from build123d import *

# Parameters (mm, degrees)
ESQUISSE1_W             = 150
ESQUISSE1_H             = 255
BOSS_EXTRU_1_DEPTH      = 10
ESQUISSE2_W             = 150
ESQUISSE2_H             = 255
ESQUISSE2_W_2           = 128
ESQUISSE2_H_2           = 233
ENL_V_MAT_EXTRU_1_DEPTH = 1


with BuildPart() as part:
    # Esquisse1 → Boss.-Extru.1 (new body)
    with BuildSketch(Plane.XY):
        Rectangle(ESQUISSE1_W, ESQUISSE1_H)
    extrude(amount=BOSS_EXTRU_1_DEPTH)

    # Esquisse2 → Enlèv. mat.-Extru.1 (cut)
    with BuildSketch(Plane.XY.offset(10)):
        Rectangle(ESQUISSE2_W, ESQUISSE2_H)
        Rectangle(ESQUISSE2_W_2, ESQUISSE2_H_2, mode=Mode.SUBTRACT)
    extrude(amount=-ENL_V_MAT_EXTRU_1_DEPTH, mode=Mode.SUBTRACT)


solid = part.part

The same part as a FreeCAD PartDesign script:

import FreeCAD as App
import Part
import Sketcher

V = App.Vector

doc = App.newDocument("Part")
body = doc.addObject("PartDesign::Body", "Body")

sketch1 = body.newObject("Sketcher::SketchObject", "Sketch")
sketch1.AttachmentSupport = (doc.getObject("XY_Plane"), [""])
sketch1.MapMode = "FlatFace"
sketch1.addGeometry(Part.LineSegment(V(-75, 128, 0), V(-75, -128, 0)), False)
sketch1.addGeometry(Part.LineSegment(V(-75, -128, 0), V(75, -128, 0)), False)
sketch1.addGeometry(Part.LineSegment(V(75, -128, 0), V(75, 128, 0)), False)
sketch1.addGeometry(Part.LineSegment(V(75, 128, 0), V(-75, 128, 0)), False)
sketch1.addConstraint(Sketcher.Constraint("Coincident", 0, 2, 1, 1))
sketch1.addConstraint(Sketcher.Constraint("Coincident", 1, 2, 2, 1))
sketch1.addConstraint(Sketcher.Constraint("Coincident", 2, 2, 3, 1))
sketch1.addConstraint(Sketcher.Constraint("Coincident", 3, 2, 0, 1))
sketch1.addConstraint(Sketcher.Constraint("Vertical", 0))
sketch1.addConstraint(Sketcher.Constraint("Horizontal", 1))
sketch1.addConstraint(Sketcher.Constraint("Vertical", 2))
sketch1.addConstraint(Sketcher.Constraint("Horizontal", 3))
sketch1.addConstraint(Sketcher.Constraint("Symmetric", 0, 2, 2, 2, -1, 1))
sketch1.addConstraint(Sketcher.Constraint("DistanceX", 1, 1, 1, 2, 150.0))
sketch1.addConstraint(Sketcher.Constraint("DistanceY", 0, 2, 0, 1, 255.0))
pad1 = body.newObject("PartDesign::Pad", "Pad")
pad1.Profile = sketch1
pad1.Length = 10

sketch2 = body.newObject("Sketcher::SketchObject", "Sketch001")
sketch2.AttachmentSupport = (doc.getObject("XY_Plane"), [""])
sketch2.MapMode = "FlatFace"
sketch2.AttachmentOffset = App.Placement(V(0, 0, 10), App.Rotation())
sketch2.addGeometry(Part.LineSegment(V(-75, 128, 0), V(-75, -128, 0)), False)
sketch2.addGeometry(Part.LineSegment(V(-75, -128, 0), V(75, -128, 0)), False)
sketch2.addGeometry(Part.LineSegment(V(75, -128, 0), V(75, 128, 0)), False)
sketch2.addGeometry(Part.LineSegment(V(75, 128, 0), V(-75, 128, 0)), False)
sketch2.addGeometry(Part.LineSegment(V(64, -116, 0), V(-64, -116, 0)), False)
sketch2.addGeometry(Part.LineSegment(V(-64, -116, 0), V(-64, 116, 0)), False)
sketch2.addGeometry(Part.LineSegment(V(-64, 116, 0), V(64, 116, 0)), False)
sketch2.addGeometry(Part.LineSegment(V(64, 116, 0), V(64, -116, 0)), False)
sketch2.addConstraint(Sketcher.Constraint("Coincident", 0, 2, 1, 1))
sketch2.addConstraint(Sketcher.Constraint("Coincident", 1, 2, 2, 1))
sketch2.addConstraint(Sketcher.Constraint("Coincident", 2, 2, 3, 1))
sketch2.addConstraint(Sketcher.Constraint("Coincident", 3, 2, 0, 1))
sketch2.addConstraint(Sketcher.Constraint("Coincident", 4, 2, 5, 1))
sketch2.addConstraint(Sketcher.Constraint("Coincident", 5, 2, 6, 1))
sketch2.addConstraint(Sketcher.Constraint("Coincident", 6, 2, 7, 1))
sketch2.addConstraint(Sketcher.Constraint("Coincident", 7, 2, 4, 1))
sketch2.addConstraint(Sketcher.Constraint("Vertical", 0))
sketch2.addConstraint(Sketcher.Constraint("Horizontal", 1))
sketch2.addConstraint(Sketcher.Constraint("Vertical", 2))
sketch2.addConstraint(Sketcher.Constraint("Horizontal", 3))
sketch2.addConstraint(Sketcher.Constraint("Horizontal", 4))
sketch2.addConstraint(Sketcher.Constraint("Vertical", 5))
sketch2.addConstraint(Sketcher.Constraint("Horizontal", 6))
sketch2.addConstraint(Sketcher.Constraint("Vertical", 7))
sketch2.addConstraint(Sketcher.Constraint("Symmetric", 0, 2, 2, 2, -1, 1))
sketch2.addConstraint(Sketcher.Constraint("Symmetric", 4, 2, 6, 2, -1, 1))
sketch2.addConstraint(Sketcher.Constraint("DistanceX", 1, 1, 1, 2, 150.0))
sketch2.addConstraint(Sketcher.Constraint("DistanceX", 4, 2, 4, 1, 128.0))
sketch2.addConstraint(Sketcher.Constraint("DistanceY", 0, 2, 0, 1, 255.0))
sketch2.addConstraint(Sketcher.Constraint("DistanceY", 5, 1, 5, 2, 233.0))
pocket1 = body.newObject("PartDesign::Pocket", "Pocket")
pocket1.Profile = sketch2
pocket1.Length = 1

doc.recompute()
